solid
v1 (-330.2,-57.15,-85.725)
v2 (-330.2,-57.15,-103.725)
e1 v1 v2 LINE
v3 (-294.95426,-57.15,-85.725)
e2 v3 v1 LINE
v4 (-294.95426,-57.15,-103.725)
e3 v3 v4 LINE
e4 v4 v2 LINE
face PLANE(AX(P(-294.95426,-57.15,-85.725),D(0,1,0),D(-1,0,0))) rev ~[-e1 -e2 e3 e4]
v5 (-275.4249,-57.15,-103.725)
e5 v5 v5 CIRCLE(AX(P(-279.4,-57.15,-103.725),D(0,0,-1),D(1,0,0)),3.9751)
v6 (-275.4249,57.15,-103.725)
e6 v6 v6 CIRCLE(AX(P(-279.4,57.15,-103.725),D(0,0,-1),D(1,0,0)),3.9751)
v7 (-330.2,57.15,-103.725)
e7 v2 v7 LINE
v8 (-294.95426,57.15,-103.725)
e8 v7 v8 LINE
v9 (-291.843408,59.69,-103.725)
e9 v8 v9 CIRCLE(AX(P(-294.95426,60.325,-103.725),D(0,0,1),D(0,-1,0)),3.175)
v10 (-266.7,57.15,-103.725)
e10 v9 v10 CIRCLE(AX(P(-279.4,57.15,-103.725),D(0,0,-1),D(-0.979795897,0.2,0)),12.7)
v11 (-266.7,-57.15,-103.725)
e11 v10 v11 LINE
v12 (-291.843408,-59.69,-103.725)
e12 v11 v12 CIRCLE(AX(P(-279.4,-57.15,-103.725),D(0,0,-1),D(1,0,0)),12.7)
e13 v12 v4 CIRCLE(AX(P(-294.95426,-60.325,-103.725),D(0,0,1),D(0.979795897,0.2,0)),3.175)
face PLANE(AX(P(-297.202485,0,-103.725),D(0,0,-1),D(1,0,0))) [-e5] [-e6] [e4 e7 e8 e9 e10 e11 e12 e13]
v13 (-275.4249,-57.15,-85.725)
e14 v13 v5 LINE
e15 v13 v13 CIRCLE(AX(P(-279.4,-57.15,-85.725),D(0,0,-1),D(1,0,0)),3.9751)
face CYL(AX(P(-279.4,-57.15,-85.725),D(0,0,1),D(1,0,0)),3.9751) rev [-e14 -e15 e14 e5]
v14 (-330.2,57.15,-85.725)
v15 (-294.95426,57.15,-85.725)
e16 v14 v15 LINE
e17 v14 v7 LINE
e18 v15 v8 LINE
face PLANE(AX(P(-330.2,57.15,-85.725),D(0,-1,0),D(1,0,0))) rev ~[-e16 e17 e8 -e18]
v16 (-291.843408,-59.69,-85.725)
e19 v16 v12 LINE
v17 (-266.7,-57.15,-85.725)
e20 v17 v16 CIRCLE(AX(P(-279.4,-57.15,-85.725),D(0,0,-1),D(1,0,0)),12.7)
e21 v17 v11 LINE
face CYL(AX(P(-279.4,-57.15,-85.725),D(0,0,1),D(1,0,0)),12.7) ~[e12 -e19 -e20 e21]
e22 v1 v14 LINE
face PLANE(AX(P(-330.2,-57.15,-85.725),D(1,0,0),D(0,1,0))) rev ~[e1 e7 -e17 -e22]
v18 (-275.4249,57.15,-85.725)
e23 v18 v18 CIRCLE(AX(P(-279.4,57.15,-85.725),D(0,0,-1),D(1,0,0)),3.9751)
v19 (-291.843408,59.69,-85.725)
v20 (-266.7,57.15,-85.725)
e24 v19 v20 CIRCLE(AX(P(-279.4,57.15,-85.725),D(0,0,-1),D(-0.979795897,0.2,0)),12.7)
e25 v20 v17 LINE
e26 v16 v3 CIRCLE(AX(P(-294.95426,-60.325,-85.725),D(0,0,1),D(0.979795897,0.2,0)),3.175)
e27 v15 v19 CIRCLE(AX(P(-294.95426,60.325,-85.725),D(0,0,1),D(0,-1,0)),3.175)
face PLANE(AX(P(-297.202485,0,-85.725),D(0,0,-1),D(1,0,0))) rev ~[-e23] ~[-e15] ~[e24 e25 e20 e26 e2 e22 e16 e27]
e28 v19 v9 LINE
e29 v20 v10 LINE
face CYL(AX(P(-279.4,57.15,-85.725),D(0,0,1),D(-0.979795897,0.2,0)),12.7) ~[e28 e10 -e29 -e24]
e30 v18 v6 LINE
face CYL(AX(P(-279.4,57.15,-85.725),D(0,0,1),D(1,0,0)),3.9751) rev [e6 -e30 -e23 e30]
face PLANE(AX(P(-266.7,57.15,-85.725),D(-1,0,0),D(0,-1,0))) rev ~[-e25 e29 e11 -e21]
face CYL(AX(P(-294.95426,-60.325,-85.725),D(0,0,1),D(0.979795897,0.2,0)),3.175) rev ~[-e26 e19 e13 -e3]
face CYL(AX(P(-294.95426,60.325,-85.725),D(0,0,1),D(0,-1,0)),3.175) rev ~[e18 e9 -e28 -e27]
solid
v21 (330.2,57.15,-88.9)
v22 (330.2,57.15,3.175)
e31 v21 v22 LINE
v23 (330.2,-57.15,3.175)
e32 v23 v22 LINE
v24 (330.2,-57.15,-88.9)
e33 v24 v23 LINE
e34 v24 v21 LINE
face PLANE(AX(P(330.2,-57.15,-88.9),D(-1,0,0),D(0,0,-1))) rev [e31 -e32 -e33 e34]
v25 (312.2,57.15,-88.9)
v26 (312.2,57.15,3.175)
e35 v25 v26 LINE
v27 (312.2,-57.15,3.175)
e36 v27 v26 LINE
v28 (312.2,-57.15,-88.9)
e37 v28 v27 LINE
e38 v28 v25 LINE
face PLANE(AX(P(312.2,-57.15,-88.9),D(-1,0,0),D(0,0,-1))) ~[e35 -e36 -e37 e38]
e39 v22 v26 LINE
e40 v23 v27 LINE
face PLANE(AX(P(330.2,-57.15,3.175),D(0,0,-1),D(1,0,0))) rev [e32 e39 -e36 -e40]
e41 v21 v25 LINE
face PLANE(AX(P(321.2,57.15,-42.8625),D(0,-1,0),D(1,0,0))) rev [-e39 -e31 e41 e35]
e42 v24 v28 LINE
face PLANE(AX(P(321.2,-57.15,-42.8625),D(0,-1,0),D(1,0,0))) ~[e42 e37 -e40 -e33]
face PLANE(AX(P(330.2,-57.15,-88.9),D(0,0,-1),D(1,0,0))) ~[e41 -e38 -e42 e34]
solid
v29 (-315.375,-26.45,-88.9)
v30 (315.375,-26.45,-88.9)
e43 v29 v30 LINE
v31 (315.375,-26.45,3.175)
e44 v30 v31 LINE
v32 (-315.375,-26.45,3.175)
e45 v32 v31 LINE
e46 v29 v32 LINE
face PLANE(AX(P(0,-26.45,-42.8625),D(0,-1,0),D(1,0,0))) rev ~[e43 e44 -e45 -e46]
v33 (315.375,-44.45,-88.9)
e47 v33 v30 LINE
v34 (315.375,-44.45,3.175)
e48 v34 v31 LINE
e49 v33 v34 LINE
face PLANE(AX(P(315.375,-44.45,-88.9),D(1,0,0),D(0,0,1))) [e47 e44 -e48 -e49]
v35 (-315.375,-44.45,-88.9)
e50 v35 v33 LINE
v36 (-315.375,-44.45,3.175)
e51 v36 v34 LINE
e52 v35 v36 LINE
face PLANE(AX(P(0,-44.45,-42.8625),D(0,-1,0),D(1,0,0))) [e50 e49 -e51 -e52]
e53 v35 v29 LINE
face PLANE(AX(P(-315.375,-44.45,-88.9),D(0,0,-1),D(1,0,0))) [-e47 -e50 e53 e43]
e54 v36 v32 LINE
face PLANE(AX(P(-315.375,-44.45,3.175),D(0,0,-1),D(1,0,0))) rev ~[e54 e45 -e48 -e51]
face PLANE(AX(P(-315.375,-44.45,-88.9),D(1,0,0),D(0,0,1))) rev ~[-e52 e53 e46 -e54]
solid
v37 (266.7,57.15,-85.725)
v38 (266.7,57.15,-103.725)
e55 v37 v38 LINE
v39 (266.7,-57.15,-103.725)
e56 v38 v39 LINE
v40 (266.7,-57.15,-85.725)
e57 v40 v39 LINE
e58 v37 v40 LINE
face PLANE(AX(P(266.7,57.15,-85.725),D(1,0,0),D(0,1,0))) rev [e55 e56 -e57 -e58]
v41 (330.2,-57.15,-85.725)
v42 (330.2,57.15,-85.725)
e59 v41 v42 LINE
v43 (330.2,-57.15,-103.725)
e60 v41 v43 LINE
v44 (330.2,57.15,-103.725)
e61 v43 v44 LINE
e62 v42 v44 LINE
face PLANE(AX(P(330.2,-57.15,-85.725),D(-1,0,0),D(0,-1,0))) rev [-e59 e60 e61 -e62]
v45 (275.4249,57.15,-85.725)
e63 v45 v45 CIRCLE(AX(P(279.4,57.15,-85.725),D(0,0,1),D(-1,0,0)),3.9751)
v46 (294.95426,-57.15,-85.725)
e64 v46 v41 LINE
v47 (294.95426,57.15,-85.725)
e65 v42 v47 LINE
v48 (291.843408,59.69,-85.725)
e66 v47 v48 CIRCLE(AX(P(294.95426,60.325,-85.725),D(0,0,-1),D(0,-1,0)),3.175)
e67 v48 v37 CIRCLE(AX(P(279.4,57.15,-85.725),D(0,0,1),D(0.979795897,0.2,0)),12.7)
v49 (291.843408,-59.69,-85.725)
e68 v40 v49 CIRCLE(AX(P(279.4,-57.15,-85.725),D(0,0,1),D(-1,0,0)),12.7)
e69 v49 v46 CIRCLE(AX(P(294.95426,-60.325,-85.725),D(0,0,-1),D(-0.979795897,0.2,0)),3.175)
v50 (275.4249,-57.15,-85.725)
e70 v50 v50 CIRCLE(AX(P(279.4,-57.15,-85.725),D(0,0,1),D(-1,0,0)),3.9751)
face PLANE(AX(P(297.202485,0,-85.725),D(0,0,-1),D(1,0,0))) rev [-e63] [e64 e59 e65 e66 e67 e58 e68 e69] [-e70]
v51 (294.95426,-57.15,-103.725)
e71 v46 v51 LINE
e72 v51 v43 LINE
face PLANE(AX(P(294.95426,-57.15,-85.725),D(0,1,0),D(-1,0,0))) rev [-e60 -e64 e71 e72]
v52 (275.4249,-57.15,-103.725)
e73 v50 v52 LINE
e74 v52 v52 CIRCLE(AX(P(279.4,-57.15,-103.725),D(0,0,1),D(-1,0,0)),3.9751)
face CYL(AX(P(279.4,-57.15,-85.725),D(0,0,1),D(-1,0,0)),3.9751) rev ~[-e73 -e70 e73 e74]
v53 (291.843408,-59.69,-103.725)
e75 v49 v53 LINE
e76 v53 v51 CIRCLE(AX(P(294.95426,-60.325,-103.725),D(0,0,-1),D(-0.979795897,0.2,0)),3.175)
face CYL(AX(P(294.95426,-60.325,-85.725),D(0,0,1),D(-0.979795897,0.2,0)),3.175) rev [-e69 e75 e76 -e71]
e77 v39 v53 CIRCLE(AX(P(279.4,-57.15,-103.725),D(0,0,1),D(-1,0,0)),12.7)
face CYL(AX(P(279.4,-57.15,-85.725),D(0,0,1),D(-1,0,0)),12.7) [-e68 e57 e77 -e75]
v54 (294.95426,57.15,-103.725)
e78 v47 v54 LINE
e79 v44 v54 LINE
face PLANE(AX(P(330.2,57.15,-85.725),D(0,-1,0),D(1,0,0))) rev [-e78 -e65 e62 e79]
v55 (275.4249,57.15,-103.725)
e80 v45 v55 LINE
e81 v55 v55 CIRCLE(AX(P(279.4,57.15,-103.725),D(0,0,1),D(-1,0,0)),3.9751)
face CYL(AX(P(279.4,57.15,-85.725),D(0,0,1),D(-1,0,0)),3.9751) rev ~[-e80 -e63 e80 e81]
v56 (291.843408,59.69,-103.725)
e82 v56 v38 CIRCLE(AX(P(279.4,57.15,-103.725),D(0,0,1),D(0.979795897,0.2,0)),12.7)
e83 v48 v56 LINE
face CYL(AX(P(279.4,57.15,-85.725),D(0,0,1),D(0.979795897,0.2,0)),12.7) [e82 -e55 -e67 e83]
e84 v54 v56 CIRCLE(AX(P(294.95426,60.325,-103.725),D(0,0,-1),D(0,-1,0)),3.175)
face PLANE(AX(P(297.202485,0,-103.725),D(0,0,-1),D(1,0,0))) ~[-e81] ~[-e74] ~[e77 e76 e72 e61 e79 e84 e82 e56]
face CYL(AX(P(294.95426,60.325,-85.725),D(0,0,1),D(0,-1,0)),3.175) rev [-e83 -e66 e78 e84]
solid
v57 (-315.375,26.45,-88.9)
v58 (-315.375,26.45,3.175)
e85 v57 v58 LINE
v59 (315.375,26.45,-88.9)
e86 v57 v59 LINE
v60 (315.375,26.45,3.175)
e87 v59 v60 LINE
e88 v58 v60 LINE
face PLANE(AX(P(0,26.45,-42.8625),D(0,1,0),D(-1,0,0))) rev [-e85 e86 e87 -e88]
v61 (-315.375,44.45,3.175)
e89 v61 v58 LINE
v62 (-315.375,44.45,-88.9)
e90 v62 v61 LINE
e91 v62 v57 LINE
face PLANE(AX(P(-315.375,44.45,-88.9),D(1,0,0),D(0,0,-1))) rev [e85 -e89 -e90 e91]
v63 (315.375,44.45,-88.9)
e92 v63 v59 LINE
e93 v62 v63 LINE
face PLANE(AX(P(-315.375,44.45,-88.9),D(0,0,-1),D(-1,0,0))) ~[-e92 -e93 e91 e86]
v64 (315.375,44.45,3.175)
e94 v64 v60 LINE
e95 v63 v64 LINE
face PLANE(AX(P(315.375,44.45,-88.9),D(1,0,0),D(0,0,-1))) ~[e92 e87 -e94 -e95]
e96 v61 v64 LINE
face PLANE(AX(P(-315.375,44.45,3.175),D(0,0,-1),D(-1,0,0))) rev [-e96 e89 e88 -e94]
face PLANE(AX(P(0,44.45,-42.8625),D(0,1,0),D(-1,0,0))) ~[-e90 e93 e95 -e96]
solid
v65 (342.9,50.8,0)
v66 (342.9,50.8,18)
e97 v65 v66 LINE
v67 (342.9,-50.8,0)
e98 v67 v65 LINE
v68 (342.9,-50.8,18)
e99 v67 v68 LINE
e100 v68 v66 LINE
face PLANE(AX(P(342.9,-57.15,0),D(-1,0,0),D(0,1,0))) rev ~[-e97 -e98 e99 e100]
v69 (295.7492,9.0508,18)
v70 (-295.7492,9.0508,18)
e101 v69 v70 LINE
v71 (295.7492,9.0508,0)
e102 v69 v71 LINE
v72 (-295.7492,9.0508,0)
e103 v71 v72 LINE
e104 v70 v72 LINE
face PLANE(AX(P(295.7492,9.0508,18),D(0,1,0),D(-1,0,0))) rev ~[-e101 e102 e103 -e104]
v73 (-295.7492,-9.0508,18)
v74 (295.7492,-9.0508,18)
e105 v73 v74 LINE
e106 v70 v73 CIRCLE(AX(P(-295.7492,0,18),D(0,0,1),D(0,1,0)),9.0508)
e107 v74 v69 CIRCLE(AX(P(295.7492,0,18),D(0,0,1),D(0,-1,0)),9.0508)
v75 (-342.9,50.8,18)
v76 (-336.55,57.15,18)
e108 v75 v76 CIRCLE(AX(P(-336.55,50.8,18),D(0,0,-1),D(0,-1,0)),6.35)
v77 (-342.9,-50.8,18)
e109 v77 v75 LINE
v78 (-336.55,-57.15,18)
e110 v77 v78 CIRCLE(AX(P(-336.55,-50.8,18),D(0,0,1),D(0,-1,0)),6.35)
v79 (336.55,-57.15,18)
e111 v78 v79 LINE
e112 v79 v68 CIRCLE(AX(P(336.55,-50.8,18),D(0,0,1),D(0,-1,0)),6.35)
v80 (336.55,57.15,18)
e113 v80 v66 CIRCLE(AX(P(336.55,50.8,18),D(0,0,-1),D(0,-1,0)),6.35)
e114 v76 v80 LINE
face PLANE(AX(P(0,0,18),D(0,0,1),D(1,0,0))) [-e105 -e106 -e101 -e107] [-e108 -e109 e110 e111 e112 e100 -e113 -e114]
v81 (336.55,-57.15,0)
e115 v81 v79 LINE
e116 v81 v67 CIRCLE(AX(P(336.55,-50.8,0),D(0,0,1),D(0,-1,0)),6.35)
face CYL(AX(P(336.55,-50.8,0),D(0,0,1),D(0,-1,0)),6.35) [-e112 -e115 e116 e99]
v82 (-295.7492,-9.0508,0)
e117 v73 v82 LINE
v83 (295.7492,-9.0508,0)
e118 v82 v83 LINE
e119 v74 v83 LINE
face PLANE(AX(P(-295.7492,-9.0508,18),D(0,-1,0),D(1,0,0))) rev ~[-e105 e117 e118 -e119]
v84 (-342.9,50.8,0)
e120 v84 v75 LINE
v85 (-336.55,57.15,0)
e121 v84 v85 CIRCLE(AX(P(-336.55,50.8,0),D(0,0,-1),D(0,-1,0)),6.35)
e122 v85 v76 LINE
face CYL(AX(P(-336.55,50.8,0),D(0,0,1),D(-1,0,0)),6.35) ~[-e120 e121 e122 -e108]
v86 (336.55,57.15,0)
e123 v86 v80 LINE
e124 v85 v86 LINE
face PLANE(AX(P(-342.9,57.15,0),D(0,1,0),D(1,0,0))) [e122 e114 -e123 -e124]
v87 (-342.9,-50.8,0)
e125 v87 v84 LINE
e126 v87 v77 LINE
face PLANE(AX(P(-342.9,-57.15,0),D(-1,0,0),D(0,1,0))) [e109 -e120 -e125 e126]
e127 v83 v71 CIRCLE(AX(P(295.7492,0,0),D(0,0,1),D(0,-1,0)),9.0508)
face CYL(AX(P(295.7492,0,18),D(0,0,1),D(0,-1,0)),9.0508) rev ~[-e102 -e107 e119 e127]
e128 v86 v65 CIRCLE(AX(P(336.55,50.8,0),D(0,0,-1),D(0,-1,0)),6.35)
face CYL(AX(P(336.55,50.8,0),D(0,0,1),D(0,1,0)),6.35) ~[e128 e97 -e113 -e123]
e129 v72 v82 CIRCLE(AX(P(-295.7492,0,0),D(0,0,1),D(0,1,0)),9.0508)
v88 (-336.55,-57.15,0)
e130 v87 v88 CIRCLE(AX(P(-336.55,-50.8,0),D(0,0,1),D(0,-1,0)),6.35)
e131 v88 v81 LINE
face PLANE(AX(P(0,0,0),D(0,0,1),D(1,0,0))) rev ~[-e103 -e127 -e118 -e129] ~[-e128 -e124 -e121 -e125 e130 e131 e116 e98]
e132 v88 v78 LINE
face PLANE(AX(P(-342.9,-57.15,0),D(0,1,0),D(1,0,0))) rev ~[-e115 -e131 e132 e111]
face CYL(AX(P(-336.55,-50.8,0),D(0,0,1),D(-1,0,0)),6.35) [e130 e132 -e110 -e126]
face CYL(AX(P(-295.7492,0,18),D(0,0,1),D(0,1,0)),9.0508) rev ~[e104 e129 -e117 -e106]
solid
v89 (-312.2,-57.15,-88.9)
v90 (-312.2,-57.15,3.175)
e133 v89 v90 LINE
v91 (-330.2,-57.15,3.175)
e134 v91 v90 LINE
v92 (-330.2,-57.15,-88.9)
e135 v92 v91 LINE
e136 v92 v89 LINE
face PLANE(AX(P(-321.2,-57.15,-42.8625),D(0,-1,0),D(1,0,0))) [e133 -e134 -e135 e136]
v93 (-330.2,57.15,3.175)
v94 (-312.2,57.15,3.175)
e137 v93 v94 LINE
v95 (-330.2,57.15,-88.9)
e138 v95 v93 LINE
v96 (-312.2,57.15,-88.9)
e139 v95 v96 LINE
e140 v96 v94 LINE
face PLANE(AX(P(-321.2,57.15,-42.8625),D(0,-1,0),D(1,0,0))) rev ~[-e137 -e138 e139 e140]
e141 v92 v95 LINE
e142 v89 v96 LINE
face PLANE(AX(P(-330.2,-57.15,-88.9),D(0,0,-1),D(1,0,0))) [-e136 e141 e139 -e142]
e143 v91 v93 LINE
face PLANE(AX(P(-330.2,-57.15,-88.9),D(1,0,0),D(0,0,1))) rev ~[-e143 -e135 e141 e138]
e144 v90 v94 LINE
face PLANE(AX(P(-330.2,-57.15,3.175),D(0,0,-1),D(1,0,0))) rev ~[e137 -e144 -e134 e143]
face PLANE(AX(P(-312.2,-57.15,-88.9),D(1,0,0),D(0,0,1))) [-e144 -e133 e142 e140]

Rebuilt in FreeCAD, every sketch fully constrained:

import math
import FreeCAD as App
import Part
import Sketcher

V = App.Vector
Q = App.Units.Quantity


def edges_at(feature, points):
    """Names of the edges that pass closest to the given points."""
    edges = feature.Shape.Edges
    near = lambda p: min(range(len(edges)), key=lambda i: edges[i].distToShape(Part.Vertex(*p))[0])
    return sorted({f"Edge{near(p) + 1}" for p in points})

doc = App.newDocument("Part")
body = doc.addObject("PartDesign::Body", "Body")

sketch1 = body.newObject("Sketcher::SketchObject", "Sketch")
sketch1.AttachmentSupport = (doc.getObject("XY_Plane"), [""])
sketch1.MapMode = "FlatFace"
sketch1.addGeometry([
    Part.LineSegment(V(-343, 57, 0), V(-343, -57, 0)),
    Part.LineSegment(V(-343, -57, 0), V(343, -57, 0)),
    Part.LineSegment(V(343, -57, 0), V(343, 57, 0)),
    Part.LineSegment(V(343, 57, 0), V(-343, 57, 0)),
], False)
sketch1.addConstraint([
    Sketcher.Constraint("Coincident", 0, 2, 1, 1),
    Sketcher.Constraint("Coincident", 1, 2, 2, 1),
    Sketcher.Constraint("Coincident", 2, 2, 3, 1),
    Sketcher.Constraint("Coincident", 3, 2, 0, 1),
    Sketcher.Constraint("Vertical", 0),
    Sketcher.Constraint("Horizontal", 1),
    Sketcher.Constraint("Vertical", 2),
    Sketcher.Constraint("Horizontal", 3),
    Sketcher.Constraint("Symmetric", 0, 2, 2, 2, -1, 1),
    Sketcher.Constraint("DistanceX", 1, 1, 1, 2, Q("27 in")),
    Sketcher.Constraint("DistanceY", 0, 2, 0, 1, Q("4.5 in")),
])
pad1 = body.newObject("PartDesign::Pad", "Pad")
pad1.Profile = sketch1
pad1.Length = 18

sketch2 = body.newObject("Sketcher::SketchObject", "Sketch001")
sketch2.AttachmentSupport = (doc.getObject("XY_Plane"), [""])
sketch2.MapMode = "FlatFace"
sketch2.AttachmentOffset = App.Placement(V(0, 0, 18), App.Rotation())
sketch2.addGeometry([
    Part.LineSegment(V(296, 9, 0), V(-296, 9, 0)),
    Part.ArcOfCircle(Part.Circle(V(-296, 0, 0), V(0, 0, 1), 9), math.radians(90), math.radians(270)),
    Part.LineSegment(V(-296, -9, 0), V(296, -9, 0)),
    Part.ArcOfCircle(Part.Circle(V(296, 0, 0), V(0, 0, 1), 9), math.radians(-90), math.radians(90)),
], False)
sketch2.addConstraint([
    Sketcher.Constraint("Tangent", 0, 2, 1, 1),
    Sketcher.Constraint("Tangent", 1, 2, 2, 1),
    Sketcher.Constraint("Tangent", 2, 2, 3, 1),
    Sketcher.Constraint("Tangent", 3, 2, 0, 1),
    Sketcher.Constraint("Horizontal", 0),
    Sketcher.Constraint("Horizontal", 2),
    Sketcher.Constraint("Symmetric", 1, 3, 3, 3, -1, 1),
    Sketcher.Constraint("Radius", 1, Q("9.0508 mm")),
    Sketcher.Constraint("DistanceX", 0, 2, 0, 1, Q("591.4984 mm")),
])
pocket1 = body.newObject("PartDesign::Pocket", "Pocket")
pocket1.Profile = sketch2
pocket1.Type = "ThroughAll"
doc.recompute()

fillet = body.newObject("PartDesign::Fillet", "Fillet")
fillet.Base = (pocket1, edges_at(pocket1, [
    (-342.9, -57.15, 9),
    (-342.9, 57.15, 9),
    (342.9, 57.15, 9),
    (342.9, -57.15, 9),
]))
fillet.Radius = Q("0.25 in")
body2 = doc.addObject("PartDesign::Body", "Body001")

sketch3 = body2.newObject("Sketcher::SketchObject", "Sketch002")
sketch3.AttachmentSupport = (doc.getObject("XZ_Plane001"), [""])
sketch3.MapMode = "FlatFace"
sketch3.AttachmentOffset = App.Placement(V(0, 0, 2.25 * 25.4), App.Rotation())
sketch3.addGeometry([
    Part.LineSegment(V(-330, 3, 0), V(-330, -89, 0)),
    Part.LineSegment(V(-330, -89, 0), V(-312, -89, 0)),
    Part.LineSegment(V(-312, -89, 0), V(-312, 3, 0)),
    Part.LineSegment(V(-312, 3, 0), V(-330, 3, 0)),
], False)
sketch3.addConstraint([
    Sketcher.Constraint("Coincident", 0, 2, 1, 1),
    Sketcher.Constraint("Coincident", 1, 2, 2, 1),
    Sketcher.Constraint("Coincident", 2, 2, 3, 1),
    Sketcher.Constraint("Coincident", 3, 2, 0, 1),
    Sketcher.Constraint("Vertical", 0),
    Sketcher.Constraint("Horizontal", 1),
    Sketcher.Constraint("Vertical", 2),
    Sketcher.Constraint("Horizontal", 3),
    Sketcher.Constraint("DistanceX", 0, 2, -1, 1, Q("13 in")),
    Sketcher.Constraint("DistanceY", 0, 2, -1, 1, Q("3.5 in")),
    Sketcher.Constraint("DistanceY", 0, 2, 0, 1, Q("3.625 in")),
    Sketcher.Constraint("DistanceX", 1, 1, 1, 2, Q("18 mm")),
])
pad2 = body2.newObject("PartDesign::Pad", "Pad001")
pad2.Profile = sketch3
pad2.Length = Q("4.5 in")
pad2.Reversed = True
body3 = doc.addObject("PartDesign::Body", "Body002")
doc.recompute()

mirroring = doc.addObject("Part::Mirroring", "Mirroring")
mirroring.Source = body2
mirroring.Base = V(0, 0, 0)
mirroring.Normal = V(1, 0, 0)
body3.BaseFeature = mirroring
doc.recompute()
body4 = doc.addObject("PartDesign::Body", "Body003")

sketch4 = body4.newObject("Sketcher::SketchObject", "Sketch003")
sketch4.AttachmentSupport = (doc.getObject("XZ_Plane003"), [""])
sketch4.MapMode = "FlatFace"
sketch4.AttachmentOffset = App.Placement(V(0, 0, 1.75 * 25.4), App.Rotation())
sketch4.addGeometry([
    Part.LineSegment(V(-315, 3, 0), V(-315, -89, 0)),
    Part.LineSegment(V(-315, -89, 0), V(315, -89, 0)),
    Part.LineSegment(V(315, -89, 0), V(315, 3, 0)),
    Part.LineSegment(V(315, 3, 0), V(-315, 3, 0)),
], False)
sketch4.addConstraint([
    Sketcher.Constraint("Coincident", 0, 2, 1, 1),
    Sketcher.Constraint("Coincident", 1, 2, 2, 1),
    Sketcher.Constraint("Coincident", 2, 2, 3, 1),
    Sketcher.Constraint("Coincident", 3, 2, 0, 1),
    Sketcher.Constraint("Vertical", 0),
    Sketcher.Constraint("Horizontal", 1),
    Sketcher.Constraint("Vertical", 2),
    Sketcher.Constraint("Horizontal", 3),
    Sketcher.Constraint("DistanceY", 0, 2, -1, 1, Q("3.5 in")),
    Sketcher.Constraint("DistanceY", 0, 2, 0, 1, Q("3.625 in")),
    Sketcher.Constraint("DistanceX", 1, 1, 1, 2, Q("630.75 mm")),
    Sketcher.Constraint("DistanceX", 0, 2, -1, 1, Q("315.375 mm")),
])
pad3 = body4.newObject("PartDesign::Pad", "Pad002")
pad3.Profile = sketch4
pad3.Length = 18
pad3.Reversed = True
body5 = doc.addObject("PartDesign::Body", "Body004")
doc.recompute()

mirroring2 = doc.addObject("Part::Mirroring", "Mirroring001")
mirroring2.Source = body4
mirroring2.Base = V(0, 0, 0)
mirroring2.Normal = V(0, -1, 0)
body5.BaseFeature = mirroring2
doc.recompute()
body6 = doc.addObject("PartDesign::Body", "Body005")

sketch5 = body6.newObject("Sketcher::SketchObject", "Sketch004")
sketch5.AttachmentSupport = (doc.getObject("XY_Plane005"), [""])
sketch5.MapMode = "FlatFace"
sketch5.AttachmentOffset = App.Placement(V(0, 0, -3.375 * 25.4), App.Rotation())
sketch5.addGeometry([
    Part.LineSegment(V(-295, -57.1, 0), V(-330.2, -57.1, 0)),
    Part.LineSegment(V(-330.2, -57.1, 0), V(-330.2, 57.1, 0)),
    Part.LineSegment(V(-330.2, 57.1, 0), V(-295, 57.1, 0)),
    Part.ArcOfCircle(Part.Circle(V(-295, 60.3, 0), V(0, 0, 1), 3.2), math.radians(-90), math.radians(-12)),
    Part.ArcOfCircle(Part.Circle(V(-279.4, 57.1, 0), V(0, 0, 1), 12.7), math.radians(0), math.radians(168)),
    Part.LineSegment(V(-266.7, 57.1, 0), V(-266.7, -57.1, 0)),
    Part.ArcOfCircle(Part.Circle(V(-279.4, -57.1, 0), V(0, 0, 1), 12.7), math.radians(-168), math.radians(0)),
    Part.ArcOfCircle(Part.Circle(V(-295, -60.3, 0), V(0, 0, 1), 3.2), math.radians(12), math.radians(90)),
    Part.Circle(V(-279.4, 57.1, 0), V(0, 0, 1), 4),
    Part.Circle(V(-279.4, -57.1, 0), V(0, 0, 1), 4),
], False)
sketch5.addConstraint([
    Sketcher.Constraint("Coincident", 0, 2, 1, 1),
    Sketcher.Constraint("Coincident", 1, 2, 2, 1),
    Sketcher.Constraint("Tangent", 2, 2, 3, 1),
    Sketcher.Constraint("Tangent", 3, 2, 4, 2),
    Sketcher.Constraint("Tangent", 4, 1, 5, 1),
    Sketcher.Constraint("Tangent", 5, 2, 6, 2),
    Sketcher.Constraint("Tangent", 6, 1, 7, 1),
    Sketcher.Constraint("Tangent", 7, 2, 0, 1),
    Sketcher.Constraint("Horizontal", 0),
    Sketcher.Constraint("Vertical", 1),
    Sketcher.Constraint("Horizontal", 2),
    Sketcher.Constraint("Vertical", 5),
    Sketcher.Constraint("Coincident", 8, 3, 4, 3),
    Sketcher.Constraint("Coincident", 9, 3, 6, 3),
    Sketcher.Constraint("Equal", 4, 6),
    Sketcher.Constraint("Equal", 3, 7),
    Sketcher.Constraint("Equal", 8, 9),
    Sketcher.Constraint("Symmetric", 3, 3, 7, 3, -1),
    Sketcher.Constraint("Horizontal", 9, 3, 0, 2),
    Sketcher.Constraint("Radius", 4, Q("0.5 in")),
    Sketcher.Constraint("Diameter", 8, Q("0.313 in")),
    Sketcher.Constraint("DistanceY", 1, 1, 1, 2, Q("4.5 in")),
    Sketcher.Constraint("DistanceX", 4, 3, -1, 1, Q("11 in")),
    Sketcher.Constraint("DistanceX", 0, 2, -1, 1, Q("13 in")),
    Sketcher.Constraint("Radius", 3, Q("0.125 in")),
])
pad4 = body6.newObject("PartDesign::Pad", "Pad003")
pad4.Profile = sketch5
pad4.Length = 18
pad4.Reversed = True
body7 = doc.addObject("PartDesign::Body", "Body006")
doc.recompute()

mirroring3 = doc.addObject("Part::Mirroring", "Mirroring002")
mirroring3.Source = body6
mirroring3.Base = V(0, 0, 0)
mirroring3.Normal = V(1, 0, 0)
body7.BaseFeature = mirroring3
doc.recompute()
mirroring.Visibility = False
mirroring2.Visibility = False
mirroring3.Visibility = False

doc.recompute()
